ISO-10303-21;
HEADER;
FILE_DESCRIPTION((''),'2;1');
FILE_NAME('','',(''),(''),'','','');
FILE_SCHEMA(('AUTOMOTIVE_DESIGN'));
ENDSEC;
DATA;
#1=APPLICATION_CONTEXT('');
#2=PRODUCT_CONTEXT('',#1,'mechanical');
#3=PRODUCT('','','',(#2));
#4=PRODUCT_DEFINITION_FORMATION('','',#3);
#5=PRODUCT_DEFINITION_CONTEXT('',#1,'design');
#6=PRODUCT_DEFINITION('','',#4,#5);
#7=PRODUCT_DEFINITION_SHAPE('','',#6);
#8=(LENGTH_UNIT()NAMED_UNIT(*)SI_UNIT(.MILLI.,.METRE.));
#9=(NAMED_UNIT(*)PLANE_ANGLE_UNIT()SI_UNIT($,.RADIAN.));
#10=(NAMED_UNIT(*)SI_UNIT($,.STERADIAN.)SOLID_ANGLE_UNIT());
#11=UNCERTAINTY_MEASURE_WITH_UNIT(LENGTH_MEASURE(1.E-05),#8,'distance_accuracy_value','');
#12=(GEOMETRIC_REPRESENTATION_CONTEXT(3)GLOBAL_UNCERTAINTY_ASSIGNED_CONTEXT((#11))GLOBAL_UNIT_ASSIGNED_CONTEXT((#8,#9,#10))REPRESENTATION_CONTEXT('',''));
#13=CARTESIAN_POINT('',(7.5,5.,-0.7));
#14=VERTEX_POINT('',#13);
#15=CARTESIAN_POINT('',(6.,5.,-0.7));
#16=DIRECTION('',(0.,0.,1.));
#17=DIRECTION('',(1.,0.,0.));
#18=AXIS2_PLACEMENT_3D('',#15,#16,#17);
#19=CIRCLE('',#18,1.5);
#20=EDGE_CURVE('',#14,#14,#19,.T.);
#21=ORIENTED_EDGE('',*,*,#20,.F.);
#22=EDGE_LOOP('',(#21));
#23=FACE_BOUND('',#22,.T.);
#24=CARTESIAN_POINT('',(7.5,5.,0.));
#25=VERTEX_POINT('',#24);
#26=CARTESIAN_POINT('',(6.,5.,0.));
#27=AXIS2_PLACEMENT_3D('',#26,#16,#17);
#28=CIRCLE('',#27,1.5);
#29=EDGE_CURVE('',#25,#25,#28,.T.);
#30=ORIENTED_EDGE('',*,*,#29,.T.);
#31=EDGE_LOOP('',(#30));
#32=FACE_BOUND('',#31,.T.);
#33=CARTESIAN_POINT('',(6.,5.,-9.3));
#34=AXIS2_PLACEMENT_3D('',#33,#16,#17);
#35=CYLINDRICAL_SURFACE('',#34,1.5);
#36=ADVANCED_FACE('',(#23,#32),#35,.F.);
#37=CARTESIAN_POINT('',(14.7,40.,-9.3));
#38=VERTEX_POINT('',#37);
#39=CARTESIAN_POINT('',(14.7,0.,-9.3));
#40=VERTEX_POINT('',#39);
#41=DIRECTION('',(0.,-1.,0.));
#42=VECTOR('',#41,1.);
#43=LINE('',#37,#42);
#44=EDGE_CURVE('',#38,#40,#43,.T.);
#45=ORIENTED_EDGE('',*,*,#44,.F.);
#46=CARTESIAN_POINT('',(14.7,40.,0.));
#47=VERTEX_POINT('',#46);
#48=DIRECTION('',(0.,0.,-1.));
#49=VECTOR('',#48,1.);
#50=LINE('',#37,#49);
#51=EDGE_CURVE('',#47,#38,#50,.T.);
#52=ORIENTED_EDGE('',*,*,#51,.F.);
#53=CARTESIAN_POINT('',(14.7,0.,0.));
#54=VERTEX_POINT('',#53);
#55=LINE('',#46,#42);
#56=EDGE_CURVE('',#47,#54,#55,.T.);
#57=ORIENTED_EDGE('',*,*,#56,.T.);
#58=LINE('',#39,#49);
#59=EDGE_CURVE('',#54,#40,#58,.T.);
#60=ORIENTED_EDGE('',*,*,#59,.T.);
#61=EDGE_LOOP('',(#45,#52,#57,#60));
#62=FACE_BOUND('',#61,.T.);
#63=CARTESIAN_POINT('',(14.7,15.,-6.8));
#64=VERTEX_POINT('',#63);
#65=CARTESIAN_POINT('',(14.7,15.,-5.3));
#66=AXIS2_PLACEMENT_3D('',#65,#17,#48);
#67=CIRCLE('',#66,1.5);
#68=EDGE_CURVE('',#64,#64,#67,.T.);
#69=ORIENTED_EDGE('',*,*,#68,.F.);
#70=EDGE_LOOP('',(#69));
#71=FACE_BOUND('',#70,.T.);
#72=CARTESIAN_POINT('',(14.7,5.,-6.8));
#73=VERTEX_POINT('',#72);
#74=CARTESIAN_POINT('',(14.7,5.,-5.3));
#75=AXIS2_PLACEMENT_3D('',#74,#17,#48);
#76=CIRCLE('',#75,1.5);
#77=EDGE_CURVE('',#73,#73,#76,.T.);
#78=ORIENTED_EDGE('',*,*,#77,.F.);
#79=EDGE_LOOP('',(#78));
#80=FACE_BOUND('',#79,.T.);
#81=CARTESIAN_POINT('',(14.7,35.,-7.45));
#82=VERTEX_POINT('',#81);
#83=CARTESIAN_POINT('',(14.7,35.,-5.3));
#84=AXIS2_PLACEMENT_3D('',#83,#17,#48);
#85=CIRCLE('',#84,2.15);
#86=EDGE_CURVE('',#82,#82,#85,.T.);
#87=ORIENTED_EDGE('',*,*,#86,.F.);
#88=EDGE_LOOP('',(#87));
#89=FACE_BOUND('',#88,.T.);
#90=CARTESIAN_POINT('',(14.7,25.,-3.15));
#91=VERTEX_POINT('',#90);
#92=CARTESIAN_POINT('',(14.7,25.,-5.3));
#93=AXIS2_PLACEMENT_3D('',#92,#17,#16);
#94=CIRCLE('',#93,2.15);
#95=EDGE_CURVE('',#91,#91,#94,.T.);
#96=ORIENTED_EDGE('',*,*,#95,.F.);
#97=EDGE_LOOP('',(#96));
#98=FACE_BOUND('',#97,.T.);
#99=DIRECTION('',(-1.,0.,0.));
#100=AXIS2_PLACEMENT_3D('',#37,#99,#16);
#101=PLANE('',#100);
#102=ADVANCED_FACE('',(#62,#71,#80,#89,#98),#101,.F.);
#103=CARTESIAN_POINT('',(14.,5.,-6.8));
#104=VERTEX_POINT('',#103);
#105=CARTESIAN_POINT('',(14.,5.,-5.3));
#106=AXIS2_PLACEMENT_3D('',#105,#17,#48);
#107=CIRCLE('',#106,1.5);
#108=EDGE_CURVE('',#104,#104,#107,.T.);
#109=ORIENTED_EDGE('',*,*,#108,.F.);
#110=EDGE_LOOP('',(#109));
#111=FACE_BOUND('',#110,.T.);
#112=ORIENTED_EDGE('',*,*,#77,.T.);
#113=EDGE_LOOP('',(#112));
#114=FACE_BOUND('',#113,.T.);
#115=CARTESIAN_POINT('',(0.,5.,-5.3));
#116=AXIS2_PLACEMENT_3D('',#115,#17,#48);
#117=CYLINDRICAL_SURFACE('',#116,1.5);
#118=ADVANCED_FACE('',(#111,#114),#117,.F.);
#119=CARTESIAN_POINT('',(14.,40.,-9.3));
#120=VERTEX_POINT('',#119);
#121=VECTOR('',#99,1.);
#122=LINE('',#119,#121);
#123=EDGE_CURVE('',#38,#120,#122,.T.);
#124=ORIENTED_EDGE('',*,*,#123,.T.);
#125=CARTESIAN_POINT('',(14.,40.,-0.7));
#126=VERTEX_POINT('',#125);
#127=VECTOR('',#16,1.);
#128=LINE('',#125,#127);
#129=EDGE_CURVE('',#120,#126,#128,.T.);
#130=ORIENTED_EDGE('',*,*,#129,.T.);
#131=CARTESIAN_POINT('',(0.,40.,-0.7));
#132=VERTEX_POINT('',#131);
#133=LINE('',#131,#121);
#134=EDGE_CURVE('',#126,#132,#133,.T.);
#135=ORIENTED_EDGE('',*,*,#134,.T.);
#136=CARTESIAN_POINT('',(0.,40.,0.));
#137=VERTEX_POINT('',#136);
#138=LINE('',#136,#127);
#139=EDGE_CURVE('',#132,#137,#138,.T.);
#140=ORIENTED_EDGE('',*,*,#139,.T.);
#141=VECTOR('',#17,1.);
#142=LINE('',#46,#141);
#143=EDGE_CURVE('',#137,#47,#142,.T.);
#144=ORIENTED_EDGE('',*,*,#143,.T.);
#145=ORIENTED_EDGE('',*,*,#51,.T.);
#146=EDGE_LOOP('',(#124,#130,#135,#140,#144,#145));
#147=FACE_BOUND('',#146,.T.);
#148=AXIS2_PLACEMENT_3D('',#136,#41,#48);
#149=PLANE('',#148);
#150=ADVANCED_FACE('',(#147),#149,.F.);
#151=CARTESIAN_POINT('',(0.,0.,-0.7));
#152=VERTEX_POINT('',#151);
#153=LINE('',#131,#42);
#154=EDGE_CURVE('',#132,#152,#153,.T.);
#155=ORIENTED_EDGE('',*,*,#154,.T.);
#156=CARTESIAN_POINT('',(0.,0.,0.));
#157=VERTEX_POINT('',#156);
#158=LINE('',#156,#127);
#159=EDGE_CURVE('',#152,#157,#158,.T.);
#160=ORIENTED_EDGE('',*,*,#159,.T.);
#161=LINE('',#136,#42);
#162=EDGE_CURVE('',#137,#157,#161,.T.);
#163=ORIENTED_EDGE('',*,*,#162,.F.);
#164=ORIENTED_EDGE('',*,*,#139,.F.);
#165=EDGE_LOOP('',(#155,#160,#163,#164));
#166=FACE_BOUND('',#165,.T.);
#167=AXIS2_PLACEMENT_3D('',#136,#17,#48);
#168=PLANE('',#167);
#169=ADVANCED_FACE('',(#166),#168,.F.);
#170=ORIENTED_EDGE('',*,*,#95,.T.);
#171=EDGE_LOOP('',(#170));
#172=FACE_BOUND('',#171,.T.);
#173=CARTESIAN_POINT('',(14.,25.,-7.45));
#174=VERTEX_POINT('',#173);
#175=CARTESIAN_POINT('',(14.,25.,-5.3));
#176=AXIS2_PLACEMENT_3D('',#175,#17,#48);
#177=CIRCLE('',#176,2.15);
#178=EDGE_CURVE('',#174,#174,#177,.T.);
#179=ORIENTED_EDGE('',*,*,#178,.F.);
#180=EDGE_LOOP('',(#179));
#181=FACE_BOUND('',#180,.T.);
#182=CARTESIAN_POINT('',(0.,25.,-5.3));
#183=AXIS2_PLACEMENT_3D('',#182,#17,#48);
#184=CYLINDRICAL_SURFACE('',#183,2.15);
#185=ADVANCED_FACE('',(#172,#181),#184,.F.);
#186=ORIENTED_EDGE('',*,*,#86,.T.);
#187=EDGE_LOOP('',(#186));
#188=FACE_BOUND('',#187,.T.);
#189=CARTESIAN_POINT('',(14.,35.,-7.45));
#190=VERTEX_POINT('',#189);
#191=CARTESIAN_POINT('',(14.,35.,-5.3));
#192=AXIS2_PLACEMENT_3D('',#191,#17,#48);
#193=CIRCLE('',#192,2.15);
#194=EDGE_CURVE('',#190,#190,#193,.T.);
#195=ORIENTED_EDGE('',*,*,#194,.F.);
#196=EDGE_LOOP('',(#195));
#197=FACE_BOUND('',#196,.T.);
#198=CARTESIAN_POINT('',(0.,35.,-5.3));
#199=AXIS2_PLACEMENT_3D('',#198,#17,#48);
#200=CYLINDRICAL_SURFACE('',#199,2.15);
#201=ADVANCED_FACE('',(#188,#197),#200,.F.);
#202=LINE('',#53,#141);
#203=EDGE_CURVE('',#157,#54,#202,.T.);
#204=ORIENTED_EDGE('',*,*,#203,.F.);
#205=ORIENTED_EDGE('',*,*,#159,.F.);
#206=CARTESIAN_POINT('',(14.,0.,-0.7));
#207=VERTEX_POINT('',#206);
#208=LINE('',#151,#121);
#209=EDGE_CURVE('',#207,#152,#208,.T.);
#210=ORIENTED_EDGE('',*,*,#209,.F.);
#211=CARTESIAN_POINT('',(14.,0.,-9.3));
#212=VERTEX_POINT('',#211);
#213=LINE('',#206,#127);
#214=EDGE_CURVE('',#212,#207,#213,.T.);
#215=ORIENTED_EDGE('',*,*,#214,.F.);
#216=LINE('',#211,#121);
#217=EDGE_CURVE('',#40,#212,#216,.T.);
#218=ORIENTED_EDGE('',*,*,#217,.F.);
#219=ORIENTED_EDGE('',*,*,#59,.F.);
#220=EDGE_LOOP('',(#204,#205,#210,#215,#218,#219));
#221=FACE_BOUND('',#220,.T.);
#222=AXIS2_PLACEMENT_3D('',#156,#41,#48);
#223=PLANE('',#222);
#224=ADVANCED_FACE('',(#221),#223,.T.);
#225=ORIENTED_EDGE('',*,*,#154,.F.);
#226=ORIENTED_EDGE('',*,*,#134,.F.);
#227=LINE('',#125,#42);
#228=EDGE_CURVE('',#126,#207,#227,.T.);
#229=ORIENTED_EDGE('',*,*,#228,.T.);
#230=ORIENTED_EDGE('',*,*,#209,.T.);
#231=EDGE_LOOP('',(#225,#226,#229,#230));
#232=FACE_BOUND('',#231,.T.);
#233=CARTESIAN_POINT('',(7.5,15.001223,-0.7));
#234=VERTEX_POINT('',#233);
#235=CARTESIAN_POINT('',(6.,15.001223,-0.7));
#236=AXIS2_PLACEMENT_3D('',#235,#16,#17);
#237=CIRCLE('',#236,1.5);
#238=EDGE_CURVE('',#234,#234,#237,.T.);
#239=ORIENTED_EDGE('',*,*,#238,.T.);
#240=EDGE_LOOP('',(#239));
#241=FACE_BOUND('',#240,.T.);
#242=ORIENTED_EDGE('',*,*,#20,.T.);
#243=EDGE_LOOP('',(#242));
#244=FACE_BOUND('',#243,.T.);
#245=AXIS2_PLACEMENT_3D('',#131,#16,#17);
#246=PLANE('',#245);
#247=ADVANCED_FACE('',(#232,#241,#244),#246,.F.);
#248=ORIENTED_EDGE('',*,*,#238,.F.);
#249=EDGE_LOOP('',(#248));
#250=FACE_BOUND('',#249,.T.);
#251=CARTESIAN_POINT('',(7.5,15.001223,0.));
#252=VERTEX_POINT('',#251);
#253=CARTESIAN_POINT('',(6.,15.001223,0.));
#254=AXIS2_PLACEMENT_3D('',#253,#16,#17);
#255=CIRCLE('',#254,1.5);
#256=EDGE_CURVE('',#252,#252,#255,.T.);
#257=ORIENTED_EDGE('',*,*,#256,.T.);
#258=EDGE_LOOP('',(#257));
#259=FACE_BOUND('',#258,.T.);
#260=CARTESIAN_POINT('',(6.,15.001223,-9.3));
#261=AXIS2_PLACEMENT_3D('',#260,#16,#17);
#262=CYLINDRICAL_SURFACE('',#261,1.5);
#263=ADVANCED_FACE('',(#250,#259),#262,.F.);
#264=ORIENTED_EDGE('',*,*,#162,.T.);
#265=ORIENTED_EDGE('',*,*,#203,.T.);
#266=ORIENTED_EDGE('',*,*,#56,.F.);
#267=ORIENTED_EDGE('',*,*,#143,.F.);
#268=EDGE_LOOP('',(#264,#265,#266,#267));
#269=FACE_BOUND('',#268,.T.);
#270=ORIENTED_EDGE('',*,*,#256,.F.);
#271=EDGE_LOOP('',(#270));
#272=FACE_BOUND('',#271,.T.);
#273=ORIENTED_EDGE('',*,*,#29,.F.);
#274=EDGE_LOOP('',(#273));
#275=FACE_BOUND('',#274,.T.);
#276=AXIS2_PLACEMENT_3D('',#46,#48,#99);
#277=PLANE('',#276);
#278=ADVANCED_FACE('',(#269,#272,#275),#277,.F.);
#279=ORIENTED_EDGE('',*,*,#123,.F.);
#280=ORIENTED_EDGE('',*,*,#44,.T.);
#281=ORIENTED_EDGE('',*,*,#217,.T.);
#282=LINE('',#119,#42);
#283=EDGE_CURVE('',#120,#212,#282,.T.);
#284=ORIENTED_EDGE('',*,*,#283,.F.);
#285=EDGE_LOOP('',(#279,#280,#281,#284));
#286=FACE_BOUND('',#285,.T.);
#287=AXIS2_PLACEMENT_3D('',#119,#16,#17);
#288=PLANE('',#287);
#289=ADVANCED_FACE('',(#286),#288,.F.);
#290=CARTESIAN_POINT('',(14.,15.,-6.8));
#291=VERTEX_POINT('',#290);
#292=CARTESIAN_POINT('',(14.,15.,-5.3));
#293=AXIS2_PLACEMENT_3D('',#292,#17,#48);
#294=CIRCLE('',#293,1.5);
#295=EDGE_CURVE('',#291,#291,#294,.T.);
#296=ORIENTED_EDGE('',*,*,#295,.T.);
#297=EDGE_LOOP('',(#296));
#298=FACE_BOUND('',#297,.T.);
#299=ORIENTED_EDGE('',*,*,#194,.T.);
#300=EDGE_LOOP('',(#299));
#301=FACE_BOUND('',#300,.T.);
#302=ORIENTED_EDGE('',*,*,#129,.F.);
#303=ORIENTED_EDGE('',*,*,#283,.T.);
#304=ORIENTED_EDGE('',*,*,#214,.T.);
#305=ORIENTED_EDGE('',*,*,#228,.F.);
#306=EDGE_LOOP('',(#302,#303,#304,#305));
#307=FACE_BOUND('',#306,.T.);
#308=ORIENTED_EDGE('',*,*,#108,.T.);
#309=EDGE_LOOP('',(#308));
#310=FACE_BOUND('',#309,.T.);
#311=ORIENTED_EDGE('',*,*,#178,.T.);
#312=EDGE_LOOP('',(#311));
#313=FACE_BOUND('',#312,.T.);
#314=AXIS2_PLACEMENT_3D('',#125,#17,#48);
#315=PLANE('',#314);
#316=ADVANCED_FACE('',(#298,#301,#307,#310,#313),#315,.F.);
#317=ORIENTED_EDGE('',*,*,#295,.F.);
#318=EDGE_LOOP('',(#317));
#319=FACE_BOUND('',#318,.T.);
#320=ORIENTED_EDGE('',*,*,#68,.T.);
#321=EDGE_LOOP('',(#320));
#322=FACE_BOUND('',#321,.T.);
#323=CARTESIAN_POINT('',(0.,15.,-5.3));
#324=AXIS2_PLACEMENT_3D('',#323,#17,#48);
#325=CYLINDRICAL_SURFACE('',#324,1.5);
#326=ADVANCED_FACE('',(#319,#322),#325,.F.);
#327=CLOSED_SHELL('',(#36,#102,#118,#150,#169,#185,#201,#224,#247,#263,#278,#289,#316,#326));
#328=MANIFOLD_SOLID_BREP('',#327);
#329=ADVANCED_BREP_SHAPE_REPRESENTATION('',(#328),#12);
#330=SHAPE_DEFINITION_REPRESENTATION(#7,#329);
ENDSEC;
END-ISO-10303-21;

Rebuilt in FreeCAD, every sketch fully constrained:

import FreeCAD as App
import Part
import Sketcher
from FreeCAD import Vector
Q = App.Units.Quantity

doc = App.newDocument("Part")
body = doc.addObject("PartDesign::Body", "Body")

# Sketch on XZ plane
sketch1 = body.newObject("Sketcher::SketchObject", "Sketch")
sketch1.AttachmentSupport = (doc.getObject("XZ_Plane"), [""])
sketch1.MapMode = "FlatFace"
sketch1.addGeometry(Part.LineSegment(Vector(0, -0.7, 0), Vector(0, 0, 0)), False)
sketch1.addGeometry(Part.LineSegment(Vector(0, 0, 0), Vector(14.7, 0, 0)), False)
sketch1.addGeometry(Part.LineSegment(Vector(14.7, 0, 0), Vector(14.7, -9.3, 0)), False)
sketch1.addGeometry(Part.LineSegment(Vector(14.7, -9.3, 0), Vector(14, -9.3, 0)), False)
sketch1.addGeometry(Part.LineSegment(Vector(14, -9.3, 0), Vector(14, -0.7, 0)), False)
sketch1.addGeometry(Part.LineSegment(Vector(14, -0.7, 0), Vector(0, -0.7, 0)), False)
sketch1.addConstraint(Sketcher.Constraint("Coincident", 0, 2, 1, 1))
sketch1.addConstraint(Sketcher.Constraint("Coincident", 1, 2, 2, 1))
sketch1.addConstraint(Sketcher.Constraint("Coincident", 2, 2, 3, 1))
sketch1.addConstraint(Sketcher.Constraint("Coincident", 3, 2, 4, 1))
sketch1.addConstraint(Sketcher.Constraint("Coincident", 4, 2, 5, 1))
sketch1.addConstraint(Sketcher.Constraint("Coincident", 5, 2, 0, 1))
sketch1.addConstraint(Sketcher.Constraint("Vertical", 0))
sketch1.addConstraint(Sketcher.Constraint("Horizontal", 1))
sketch1.addConstraint(Sketcher.Constraint("Vertical", 2))
sketch1.addConstraint(Sketcher.Constraint("Horizontal", 3))
sketch1.addConstraint(Sketcher.Constraint("Vertical", 4))
sketch1.addConstraint(Sketcher.Constraint("Horizontal", 5))
sketch1.addConstraint(Sketcher.Constraint("Coincident", 0, 2, -1, 1))
sketch1.addConstraint(Sketcher.Constraint("Equal", 3, 0))
sketch1.addConstraint(Sketcher.Constraint("DistanceX", 5, 2, 5, 1, Q("14 mm")))
sketch1.addConstraint(Sketcher.Constraint("DistanceX", 1, 1, 1, 2, Q("14.7 mm")))
sketch1.addConstraint(Sketcher.Constraint("DistanceY", 2, 2, 2, 1, Q("9.3 mm")))
pad1 = body.newObject("PartDesign::Pad", "Pad")
pad1.Profile = sketch1
pad1.Length = 40
pad1.Reversed = True

# Sketch on YZ plane
sketch2 = body.newObject("Sketcher::SketchObject", "Sketch001")
sketch2.AttachmentSupport = (doc.getObject("YZ_Plane"), [""])
sketch2.MapMode = "FlatFace"
sketch2.AttachmentOffset = App.Placement(Vector(0, 0, 14.7), App.Rotation())
sketch2.addGeometry(Part.Circle(Vector(35, -5.3, 0), Vector(0, 0, 1), 2.15), False)
sketch2.addGeometry(Part.Circle(Vector(25, -5.3, 0), Vector(0, 0, 1), 2.15), False)
sketch2.addGeometry(Part.Circle(Vector(15, -5.3, 0), Vector(0, 0, 1), 1.5), False)
sketch2.addGeometry(Part.Circle(Vector(5, -5.3, 0), Vector(0, 0, 1), 1.5), False)
sketch2.addConstraint(Sketcher.Constraint("Equal", 0, 1))
sketch2.addConstraint(Sketcher.Constraint("Equal", 2, 3))
sketch2.addConstraint(Sketcher.Constraint("Horizontal", 0, 3, 1, 3))
sketch2.addConstraint(Sketcher.Constraint("Horizontal", 1, 3, 2, 3))
sketch2.addConstraint(Sketcher.Constraint("Horizontal", 2, 3, 3, 3))
sketch2.addConstraint(Sketcher.Constraint("Diameter", 2, Q("3 mm")))
sketch2.addConstraint(Sketcher.Constraint("Diameter", 0, Q("4.3 mm")))
sketch2.addConstraint(Sketcher.Constraint("DistanceX", -1, 1, 0, 3, Q("35 mm")))
sketch2.addConstraint(Sketcher.Constraint("DistanceX", -1, 1, 1, 3, Q("25 mm")))
sketch2.addConstraint(Sketcher.Constraint("DistanceX", -1, 1, 2, 3, Q("15 mm")))
sketch2.addConstraint(Sketcher.Constraint("DistanceX", -1, 1, 3, 3, Q("5 mm")))
sketch2.addConstraint(Sketcher.Constraint("DistanceY", 0, 3, -1, 1, Q("5.3 mm")))
pocket1 = body.newObject("PartDesign::Pocket", "Pocket")
pocket1.Profile = sketch2
pocket1.Type = "ThroughAll"

# Sketch on XY plane
sketch3 = body.newObject("Sketcher::SketchObject", "Sketch002")
sketch3.AttachmentSupport = (doc.getObject("XY_Plane"), [""])
sketch3.MapMode = "FlatFace"
sketch3.addGeometry(Part.Circle(Vector(6, 15.001223, 0), Vector(0, 0, 1), 1.5), False)
sketch3.addGeometry(Part.Circle(Vector(6, 5, 0), Vector(0, 0, 1), 1.5), False)
sketch3.addConstraint(Sketcher.Constraint("Equal", 0, 1))
sketch3.addConstraint(Sketcher.Constraint("Vertical", 0, 3, 1, 3))
sketch3.addConstraint(Sketcher.Constraint("Diameter", 0, Q("3 mm")))
sketch3.addConstraint(Sketcher.Constraint("DistanceX", -1, 1, 0, 3, Q("6 mm")))
sketch3.addConstraint(Sketcher.Constraint("DistanceY", -1, 1, 1, 3, Q("5 mm")))
sketch3.addConstraint(Sketcher.Constraint("DistanceY", -1, 1, 0, 3, Q("15.001223 mm")))
pocket2 = body.newObject("PartDesign::Pocket", "Pocket001")
pocket2.Profile = sketch3
pocket2.Type = "ThroughAll"

doc.recompute()
